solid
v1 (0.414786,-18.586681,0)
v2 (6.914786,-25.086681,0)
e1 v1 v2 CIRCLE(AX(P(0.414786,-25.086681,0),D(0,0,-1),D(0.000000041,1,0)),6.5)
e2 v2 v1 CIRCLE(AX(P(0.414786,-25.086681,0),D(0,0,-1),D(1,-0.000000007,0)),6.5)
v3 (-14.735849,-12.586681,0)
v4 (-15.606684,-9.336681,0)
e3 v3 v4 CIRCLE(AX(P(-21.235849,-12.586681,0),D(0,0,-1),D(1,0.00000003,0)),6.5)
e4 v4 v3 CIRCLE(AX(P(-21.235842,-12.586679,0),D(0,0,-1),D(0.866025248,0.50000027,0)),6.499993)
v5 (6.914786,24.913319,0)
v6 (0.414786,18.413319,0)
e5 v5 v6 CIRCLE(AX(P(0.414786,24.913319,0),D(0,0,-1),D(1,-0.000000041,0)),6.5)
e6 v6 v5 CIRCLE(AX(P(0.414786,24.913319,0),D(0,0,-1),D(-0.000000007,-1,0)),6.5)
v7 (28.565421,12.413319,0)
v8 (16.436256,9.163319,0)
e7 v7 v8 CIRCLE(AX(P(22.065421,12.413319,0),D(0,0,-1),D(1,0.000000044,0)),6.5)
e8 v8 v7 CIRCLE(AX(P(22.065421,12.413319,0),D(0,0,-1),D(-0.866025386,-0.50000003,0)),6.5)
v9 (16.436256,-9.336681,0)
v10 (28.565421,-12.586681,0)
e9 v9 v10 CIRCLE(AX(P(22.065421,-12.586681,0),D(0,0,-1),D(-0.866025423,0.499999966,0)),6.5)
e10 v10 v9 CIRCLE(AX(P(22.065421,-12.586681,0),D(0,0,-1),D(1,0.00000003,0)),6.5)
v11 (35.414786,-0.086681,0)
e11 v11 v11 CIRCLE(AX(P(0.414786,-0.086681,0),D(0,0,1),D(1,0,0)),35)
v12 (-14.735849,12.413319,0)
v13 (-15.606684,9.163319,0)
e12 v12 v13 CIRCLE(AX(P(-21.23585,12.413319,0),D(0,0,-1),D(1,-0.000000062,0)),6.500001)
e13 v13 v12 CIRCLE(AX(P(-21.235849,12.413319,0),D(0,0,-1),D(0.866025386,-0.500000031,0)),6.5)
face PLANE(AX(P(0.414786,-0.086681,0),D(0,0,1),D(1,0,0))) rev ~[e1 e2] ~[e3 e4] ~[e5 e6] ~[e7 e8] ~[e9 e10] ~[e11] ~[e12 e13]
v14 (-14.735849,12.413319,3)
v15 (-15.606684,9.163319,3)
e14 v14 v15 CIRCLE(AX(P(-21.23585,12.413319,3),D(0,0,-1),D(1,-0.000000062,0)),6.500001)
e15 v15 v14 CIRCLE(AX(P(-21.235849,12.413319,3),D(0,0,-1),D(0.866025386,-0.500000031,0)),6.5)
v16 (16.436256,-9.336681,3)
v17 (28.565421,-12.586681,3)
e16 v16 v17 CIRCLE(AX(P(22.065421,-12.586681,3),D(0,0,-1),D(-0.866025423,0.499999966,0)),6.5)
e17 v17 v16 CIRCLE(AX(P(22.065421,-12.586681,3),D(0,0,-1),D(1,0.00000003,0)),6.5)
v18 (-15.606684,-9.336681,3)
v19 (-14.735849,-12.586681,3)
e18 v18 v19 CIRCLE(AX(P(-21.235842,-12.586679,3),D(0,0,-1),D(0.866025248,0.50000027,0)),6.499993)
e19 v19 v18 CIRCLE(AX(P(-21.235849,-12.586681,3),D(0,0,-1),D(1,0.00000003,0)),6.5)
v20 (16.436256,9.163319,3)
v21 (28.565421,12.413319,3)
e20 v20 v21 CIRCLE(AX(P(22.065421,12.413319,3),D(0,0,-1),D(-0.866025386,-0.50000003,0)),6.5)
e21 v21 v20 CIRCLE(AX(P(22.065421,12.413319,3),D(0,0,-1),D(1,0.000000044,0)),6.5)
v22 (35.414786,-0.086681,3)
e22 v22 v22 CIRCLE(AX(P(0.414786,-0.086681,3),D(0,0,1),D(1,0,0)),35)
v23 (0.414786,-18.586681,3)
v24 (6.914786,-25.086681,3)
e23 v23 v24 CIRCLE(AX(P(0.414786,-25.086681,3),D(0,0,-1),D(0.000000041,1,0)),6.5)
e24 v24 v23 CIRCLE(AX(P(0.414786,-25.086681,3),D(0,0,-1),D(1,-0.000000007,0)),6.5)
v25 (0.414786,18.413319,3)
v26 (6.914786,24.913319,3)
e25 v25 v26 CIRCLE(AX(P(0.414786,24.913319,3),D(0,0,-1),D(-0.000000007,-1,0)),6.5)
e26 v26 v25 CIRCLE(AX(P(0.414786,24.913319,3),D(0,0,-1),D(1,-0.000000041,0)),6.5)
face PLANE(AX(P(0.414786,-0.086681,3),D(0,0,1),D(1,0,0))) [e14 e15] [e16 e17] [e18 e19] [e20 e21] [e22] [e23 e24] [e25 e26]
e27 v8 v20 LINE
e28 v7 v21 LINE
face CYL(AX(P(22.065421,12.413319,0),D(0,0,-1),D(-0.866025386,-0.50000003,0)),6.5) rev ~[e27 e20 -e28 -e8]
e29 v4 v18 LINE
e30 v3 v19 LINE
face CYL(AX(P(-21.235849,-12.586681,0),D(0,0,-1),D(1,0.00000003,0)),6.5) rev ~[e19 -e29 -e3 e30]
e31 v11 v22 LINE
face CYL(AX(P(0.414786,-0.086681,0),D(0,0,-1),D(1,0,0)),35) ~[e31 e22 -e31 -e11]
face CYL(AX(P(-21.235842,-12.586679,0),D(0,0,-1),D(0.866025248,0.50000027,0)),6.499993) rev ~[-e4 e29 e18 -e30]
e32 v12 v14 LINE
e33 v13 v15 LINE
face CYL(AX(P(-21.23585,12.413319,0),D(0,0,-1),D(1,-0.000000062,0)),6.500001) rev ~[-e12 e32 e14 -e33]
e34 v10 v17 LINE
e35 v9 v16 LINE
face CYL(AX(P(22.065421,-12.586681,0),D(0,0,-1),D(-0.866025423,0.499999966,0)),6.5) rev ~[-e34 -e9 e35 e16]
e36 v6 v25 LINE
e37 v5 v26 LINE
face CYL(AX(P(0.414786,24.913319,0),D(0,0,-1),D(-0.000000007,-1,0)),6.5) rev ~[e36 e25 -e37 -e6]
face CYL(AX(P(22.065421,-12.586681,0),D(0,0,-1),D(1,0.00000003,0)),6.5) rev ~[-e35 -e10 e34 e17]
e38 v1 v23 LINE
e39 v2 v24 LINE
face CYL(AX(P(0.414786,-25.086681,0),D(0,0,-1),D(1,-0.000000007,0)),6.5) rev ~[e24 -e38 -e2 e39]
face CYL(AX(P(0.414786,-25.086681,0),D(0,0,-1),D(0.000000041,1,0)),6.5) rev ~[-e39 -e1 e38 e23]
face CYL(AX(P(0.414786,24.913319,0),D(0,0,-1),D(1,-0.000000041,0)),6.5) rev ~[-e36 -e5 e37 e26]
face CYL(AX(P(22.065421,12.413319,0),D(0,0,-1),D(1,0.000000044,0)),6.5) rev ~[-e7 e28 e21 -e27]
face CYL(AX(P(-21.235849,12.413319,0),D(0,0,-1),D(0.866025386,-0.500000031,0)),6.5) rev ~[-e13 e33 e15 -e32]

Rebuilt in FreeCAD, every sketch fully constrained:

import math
import FreeCAD as App
import Part
import Sketcher
from FreeCAD import Vector

doc = App.newDocument("Part")
params = doc.addObject("Spreadsheet::Sheet", "Params")
for row, (alias, value) in enumerate([
    ("sketch1_diameter", "70 mm"),
    ("sketch1_radius", "6.5 mm"),
    ("pad1_length", "3 mm"),
], start=1):
    params.set(f"A{row}", alias)
    params.set(f"B{row}", "=" + value)
    params.setAlias(f"B{row}", alias)

body = doc.addObject("PartDesign::Body", "Body")

sketch1 = body.newObject("Sketcher::SketchObject", "Sketch")
sketch1.AttachmentSupport = (doc.getObject("XY_Plane"), [""])
sketch1.MapMode = "FlatFace"
sketch1.addGeometry(Part.Circle(Vector(0.4, -0.1, 0), Vector(0, 0, 1), 35), False)
sketch1.addGeometry(Part.ArcOfCircle(Part.Circle(Vector(-21.2, -12.6, 0), Vector(0, 0, 1), 6.5), math.radians(0), math.radians(30)), False)
sketch1.addGeometry(Part.ArcOfCircle(Part.Circle(Vector(-21.2, -12.6, 0), Vector(0, 0, 1), 6.5), math.radians(30), math.radians(360)), False)
sketch1.addGeometry(Part.ArcOfCircle(Part.Circle(Vector(0.4, -25.1, 0), Vector(0, 0, 1), 6.5), math.radians(0), math.radians(90)), False)
sketch1.addGeometry(Part.ArcOfCircle(Part.Circle(Vector(0.4, -25.1, 0), Vector(0, 0, 1), 6.5), math.radians(90), math.radians(360)), False)
sketch1.addGeometry(Part.ArcOfCircle(Part.Circle(Vector(22.1, -12.6, 0), Vector(0, 0, 1), 6.5), math.radians(0), math.radians(150)), False)
sketch1.addGeometry(Part.ArcOfCircle(Part.Circle(Vector(22.1, -12.6, 0), Vector(0, 0, 1), 6.5), math.radians(150), math.radians(360)), False)
sketch1.addGeometry(Part.ArcOfCircle(Part.Circle(Vector(-21.2, 12.4, 0), Vector(0, 0, 1), 6.5), math.radians(0), math.radians(330)), False)
sketch1.addGeometry(Part.ArcOfCircle(Part.Circle(Vector(-21.2, 12.4, 0), Vector(0, 0, 1), 6.5), math.radians(-30), math.radians(0)), False)
sketch1.addGeometry(Part.ArcOfCircle(Part.Circle(Vector(22.1, 12.4, 0), Vector(0, 0, 1), 6.5), math.radians(0), math.radians(210)), False)
sketch1.addGeometry(Part.ArcOfCircle(Part.Circle(Vector(22.1, 12.4, 0), Vector(0, 0, 1), 6.5), math.radians(-150), math.radians(0)), False)
sketch1.addGeometry(Part.ArcOfCircle(Part.Circle(Vector(0.4, 24.9, 0), Vector(0, 0, 1), 6.5), math.radians(0), math.radians(270)), False)
sketch1.addGeometry(Part.ArcOfCircle(Part.Circle(Vector(0.4, 24.9, 0), Vector(0, 0, 1), 6.5), math.radians(-90), math.radians(0)), False)
sketch1.addConstraint(Sketcher.Constraint("Tangent", 1, 1, 2, 2))
sketch1.addConstraint(Sketcher.Constraint("Coincident", 2, 1, 1, 2))
sketch1.addConstraint(Sketcher.Constraint("Tangent", 3, 1, 4, 2))
sketch1.addConstraint(Sketcher.Constraint("Coincident", 4, 1, 3, 2))
sketch1.addConstraint(Sketcher.Constraint("Tangent", 5, 1, 6, 2))
sketch1.addConstraint(Sketcher.Constraint("Coincident", 6, 1, 5, 2))
sketch1.addConstraint(Sketcher.Constraint("Tangent", 7, 1, 8, 2))
sketch1.addConstraint(Sketcher.Constraint("Coincident", 8, 1, 7, 2))
sketch1.addConstraint(Sketcher.Constraint("Tangent", 9, 1, 10, 2))
sketch1.addConstraint(Sketcher.Constraint("Coincident", 10, 1, 9, 2))
sketch1.addConstraint(Sketcher.Constraint("Tangent", 11, 1, 12, 2))
sketch1.addConstraint(Sketcher.Constraint("Coincident", 12, 1, 11, 2))
sketch1.addConstraint(Sketcher.Constraint("Equal", 2, 3))
sketch1.addConstraint(Sketcher.Constraint("Equal", 4, 5))
sketch1.addConstraint(Sketcher.Constraint("Equal", 6, 7))
sketch1.addConstraint(Sketcher.Constraint("Equal", 8, 9))
sketch1.addConstraint(Sketcher.Constraint("Equal", 10, 11))
sketch1.addConstraint(Sketcher.Constraint("Horizontal", 2, 3, 5, 3))
sketch1.addConstraint(Sketcher.Constraint("Horizontal", 8, 3, 9, 3))
sketch1.addConstraint(Sketcher.Constraint("Horizontal", 6, 3, 1, 1))
sketch1.addConstraint(Sketcher.Constraint("Horizontal", 4, 3, 3, 1))
sketch1.addConstraint(Sketcher.Constraint("Horizontal", 1, 1, 5, 1))
sketch1.addConstraint(Sketcher.Constraint("Horizontal", 2, 1, 6, 1))
sketch1.addConstraint(Sketcher.Constraint("Horizontal", 10, 3, 7, 1))
sketch1.addConstraint(Sketcher.Constraint("Horizontal", 7, 1, 9, 1))
sketch1.addConstraint(Sketcher.Constraint("Horizontal", 8, 1, 10, 1))
sketch1.addConstraint(Sketcher.Constraint("Horizontal", 12, 3, 11, 1))
sketch1.addConstraint(Sketcher.Constraint("Vertical", 0, 3, 3, 3))
sketch1.addConstraint(Sketcher.Constraint("Vertical", 2, 3, 7, 3))
sketch1.addConstraint(Sketcher.Constraint("Vertical", 6, 3, 9, 3))
sketch1.addConstraint(Sketcher.Constraint("Vertical", 4, 3, 11, 3))
sketch1.addConstraint(Sketcher.Constraint("Vertical", 12, 3, 4, 1))
sketch1.addConstraint(Sketcher.Constraint("Vertical", 2, 1, 8, 1))
sketch1.addConstraint(Sketcher.Constraint("Vertical", 4, 1, 12, 1))
sketch1.addConstraint(Sketcher.Constraint("Diameter", 0, 70.0))
sketch1.addConstraint(Sketcher.Constraint("Radius", 2, 6.5))
sketch1.addConstraint(Sketcher.Constraint("DistanceY", 3, 3, 0, 3, 25.0))
sketch1.addConstraint(Sketcher.Constraint("DistanceY", 1, 3, 7, 3, 24.999999))
sketch1.addConstraint(Sketcher.Constraint("DistanceY", 0, 3, 11, 3, 25.0))
sketch1.addConstraint(Sketcher.Constraint("DistanceY", 4, 1, 1, 1, 6.0))
sketch1.addConstraint(Sketcher.Constraint("DistanceY", 2, 1, 8, 1, 18.5))
sketch1.addConstraint(Sketcher.Constraint("DistanceY", 0, 3, -1, 1, 0.086681))
sketch1.addConstraint(Sketcher.Constraint("DistanceX", 2, 3, -1, 1, 21.235849))
sketch1.addConstraint(Sketcher.Constraint("DistanceX", -1, 1, 5, 3, 22.065421))
sketch1.addConstraint(Sketcher.Constraint("DistanceX", 1, 3, 0, 3, 21.650628))
sketch1.setExpression("Constraints[34]", "Params.sketch1_diameter")
sketch1.setExpression("Constraints[35]", "Params.sketch1_radius")
pad1 = body.newObject("PartDesign::Pad", "Pad")
pad1.Profile = sketch1
pad1.setExpression("Length", "Params.pad1_length")

doc.recompute()
